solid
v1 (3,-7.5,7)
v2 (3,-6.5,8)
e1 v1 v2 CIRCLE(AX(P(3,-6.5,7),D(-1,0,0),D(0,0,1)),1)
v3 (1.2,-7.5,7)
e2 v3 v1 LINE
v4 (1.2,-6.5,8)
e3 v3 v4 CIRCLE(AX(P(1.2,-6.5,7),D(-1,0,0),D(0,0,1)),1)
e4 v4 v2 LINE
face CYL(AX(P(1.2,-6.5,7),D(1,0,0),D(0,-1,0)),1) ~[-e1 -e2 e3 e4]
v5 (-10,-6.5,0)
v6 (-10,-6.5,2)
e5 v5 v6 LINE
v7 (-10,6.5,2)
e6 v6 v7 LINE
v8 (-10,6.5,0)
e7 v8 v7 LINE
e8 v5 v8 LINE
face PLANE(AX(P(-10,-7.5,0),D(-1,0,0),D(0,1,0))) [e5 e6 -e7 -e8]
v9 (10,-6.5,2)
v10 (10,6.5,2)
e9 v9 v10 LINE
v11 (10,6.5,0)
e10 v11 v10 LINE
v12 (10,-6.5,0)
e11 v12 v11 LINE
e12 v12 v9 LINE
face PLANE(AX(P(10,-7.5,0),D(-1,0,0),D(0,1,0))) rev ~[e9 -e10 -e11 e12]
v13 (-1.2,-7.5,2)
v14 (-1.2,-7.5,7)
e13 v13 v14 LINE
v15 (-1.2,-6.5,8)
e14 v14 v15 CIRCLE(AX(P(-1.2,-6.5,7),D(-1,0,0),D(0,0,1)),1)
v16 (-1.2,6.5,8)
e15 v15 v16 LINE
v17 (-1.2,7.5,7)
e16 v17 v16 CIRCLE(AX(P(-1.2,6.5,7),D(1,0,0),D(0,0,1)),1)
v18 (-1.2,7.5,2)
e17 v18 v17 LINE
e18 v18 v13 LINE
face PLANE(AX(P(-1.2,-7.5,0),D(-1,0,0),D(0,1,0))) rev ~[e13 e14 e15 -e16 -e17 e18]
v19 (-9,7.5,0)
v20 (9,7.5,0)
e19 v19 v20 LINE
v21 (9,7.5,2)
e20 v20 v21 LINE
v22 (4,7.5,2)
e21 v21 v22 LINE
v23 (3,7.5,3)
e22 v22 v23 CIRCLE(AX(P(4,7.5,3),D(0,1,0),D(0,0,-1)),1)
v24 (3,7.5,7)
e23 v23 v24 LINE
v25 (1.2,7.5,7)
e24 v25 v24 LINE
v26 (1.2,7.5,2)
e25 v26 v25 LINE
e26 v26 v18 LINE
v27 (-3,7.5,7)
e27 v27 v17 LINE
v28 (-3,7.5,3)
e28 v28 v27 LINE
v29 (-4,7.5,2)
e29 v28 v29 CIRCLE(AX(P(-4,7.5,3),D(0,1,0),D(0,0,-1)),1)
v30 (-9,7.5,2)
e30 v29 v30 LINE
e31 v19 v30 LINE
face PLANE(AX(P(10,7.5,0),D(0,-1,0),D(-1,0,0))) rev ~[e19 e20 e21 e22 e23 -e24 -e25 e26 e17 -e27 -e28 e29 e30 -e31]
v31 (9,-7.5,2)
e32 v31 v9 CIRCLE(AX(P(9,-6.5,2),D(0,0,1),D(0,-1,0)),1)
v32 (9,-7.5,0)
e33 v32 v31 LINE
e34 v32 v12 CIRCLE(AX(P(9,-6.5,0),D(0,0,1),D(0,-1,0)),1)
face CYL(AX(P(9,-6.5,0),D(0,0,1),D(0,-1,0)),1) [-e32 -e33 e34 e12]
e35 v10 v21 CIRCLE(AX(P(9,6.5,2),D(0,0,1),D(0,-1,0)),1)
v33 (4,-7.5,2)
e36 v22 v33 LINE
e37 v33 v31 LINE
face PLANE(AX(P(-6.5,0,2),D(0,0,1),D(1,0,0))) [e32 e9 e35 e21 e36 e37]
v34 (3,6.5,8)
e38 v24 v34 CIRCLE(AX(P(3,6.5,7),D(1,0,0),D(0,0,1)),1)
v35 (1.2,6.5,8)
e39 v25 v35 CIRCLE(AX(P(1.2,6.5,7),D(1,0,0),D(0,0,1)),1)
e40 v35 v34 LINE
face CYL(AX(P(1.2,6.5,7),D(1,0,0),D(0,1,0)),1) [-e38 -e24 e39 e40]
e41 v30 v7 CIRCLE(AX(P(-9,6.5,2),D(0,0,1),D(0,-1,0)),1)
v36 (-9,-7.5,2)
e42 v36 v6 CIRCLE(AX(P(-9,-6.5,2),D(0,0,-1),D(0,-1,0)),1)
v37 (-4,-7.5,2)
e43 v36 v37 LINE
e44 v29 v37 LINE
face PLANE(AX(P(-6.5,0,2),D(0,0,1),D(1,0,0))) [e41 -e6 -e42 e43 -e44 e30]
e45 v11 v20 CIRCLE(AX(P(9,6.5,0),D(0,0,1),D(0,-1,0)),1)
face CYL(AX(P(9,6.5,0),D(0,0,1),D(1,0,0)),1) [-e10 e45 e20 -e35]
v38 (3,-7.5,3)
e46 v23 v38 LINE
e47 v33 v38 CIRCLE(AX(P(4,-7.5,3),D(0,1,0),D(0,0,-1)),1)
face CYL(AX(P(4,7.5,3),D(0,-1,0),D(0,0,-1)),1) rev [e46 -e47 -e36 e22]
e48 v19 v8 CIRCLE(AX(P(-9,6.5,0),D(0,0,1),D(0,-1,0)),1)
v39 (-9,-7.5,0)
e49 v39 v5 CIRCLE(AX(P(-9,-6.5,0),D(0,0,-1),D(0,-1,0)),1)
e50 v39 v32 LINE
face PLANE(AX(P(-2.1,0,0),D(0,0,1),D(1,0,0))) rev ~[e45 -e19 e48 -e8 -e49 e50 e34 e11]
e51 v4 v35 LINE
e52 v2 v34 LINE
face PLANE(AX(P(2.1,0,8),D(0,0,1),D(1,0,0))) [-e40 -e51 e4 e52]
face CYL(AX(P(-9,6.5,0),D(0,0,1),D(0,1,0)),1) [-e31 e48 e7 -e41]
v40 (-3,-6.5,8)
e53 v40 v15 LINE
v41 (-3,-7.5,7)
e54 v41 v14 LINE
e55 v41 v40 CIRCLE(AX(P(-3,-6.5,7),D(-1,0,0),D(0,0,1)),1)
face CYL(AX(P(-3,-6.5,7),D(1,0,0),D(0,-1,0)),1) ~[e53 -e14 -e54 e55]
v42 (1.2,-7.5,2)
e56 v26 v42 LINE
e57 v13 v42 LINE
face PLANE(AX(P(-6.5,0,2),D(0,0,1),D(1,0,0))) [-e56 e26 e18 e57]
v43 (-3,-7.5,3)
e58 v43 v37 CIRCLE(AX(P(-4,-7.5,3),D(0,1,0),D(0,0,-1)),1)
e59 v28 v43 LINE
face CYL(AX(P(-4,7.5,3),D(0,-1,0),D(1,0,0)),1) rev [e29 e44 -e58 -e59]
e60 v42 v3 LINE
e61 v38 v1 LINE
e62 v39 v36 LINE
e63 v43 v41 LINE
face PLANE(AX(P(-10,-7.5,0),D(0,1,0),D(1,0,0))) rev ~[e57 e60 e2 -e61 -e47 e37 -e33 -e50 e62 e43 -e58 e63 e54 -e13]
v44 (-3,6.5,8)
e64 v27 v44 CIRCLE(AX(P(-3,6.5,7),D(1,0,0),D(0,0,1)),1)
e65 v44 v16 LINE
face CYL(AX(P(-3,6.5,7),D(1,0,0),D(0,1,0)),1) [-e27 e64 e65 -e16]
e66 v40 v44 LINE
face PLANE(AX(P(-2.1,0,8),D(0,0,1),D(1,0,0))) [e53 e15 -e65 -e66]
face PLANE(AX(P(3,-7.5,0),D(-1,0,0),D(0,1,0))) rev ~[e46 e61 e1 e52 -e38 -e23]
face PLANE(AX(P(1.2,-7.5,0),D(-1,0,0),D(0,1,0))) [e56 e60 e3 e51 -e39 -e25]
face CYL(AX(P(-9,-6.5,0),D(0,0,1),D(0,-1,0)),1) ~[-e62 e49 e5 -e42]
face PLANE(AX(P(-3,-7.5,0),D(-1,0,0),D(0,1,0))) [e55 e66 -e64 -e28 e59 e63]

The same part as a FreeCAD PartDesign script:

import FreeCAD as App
import Part
import Sketcher
Q = App.Units.Quantity


def edges_at(feature, points):
    """Names of the edges that pass closest to the given points."""
    edges = feature.Shape.Edges
    near = lambda p: min(range(len(edges)), key=lambda i: edges[i].distToShape(Part.Vertex(*p))[0])
    return sorted({f"Edge{near(p) + 1}" for p in points})

doc = App.newDocument("Part")
body = doc.addObject("PartDesign::Body", "Body")

sketch1 = body.newObject("Sketcher::SketchObject", "Sketch")
sketch1.AttachmentSupport = (doc.getObject("XY_Plane"), [""])
sketch1.MapMode = "FlatFace"
sketch1.addGeometry(Part.LineSegment(App.Vector(-10, 8, 0), App.Vector(-10, -8, 0)), False)
sketch1.addGeometry(Part.LineSegment(App.Vector(-10, -8, 0), App.Vector(10, -8, 0)), False)
sketch1.addGeometry(Part.LineSegment(App.Vector(10, -8, 0), App.Vector(10, 8, 0)), False)
sketch1.addGeometry(Part.LineSegment(App.Vector(10, 8, 0), App.Vector(-10, 8, 0)), False)
sketch1.addConstraint(Sketcher.Constraint("Coincident", 0, 2, 1, 1))
sketch1.addConstraint(Sketcher.Constraint("Coincident", 1, 2, 2, 1))
sketch1.addConstraint(Sketcher.Constraint("Coincident", 2, 2, 3, 1))
sketch1.addConstraint(Sketcher.Constraint("Coincident", 3, 2, 0, 1))
sketch1.addConstraint(Sketcher.Constraint("Vertical", 0))
sketch1.addConstraint(Sketcher.Constraint("Horizontal", 1))
sketch1.addConstraint(Sketcher.Constraint("Vertical", 2))
sketch1.addConstraint(Sketcher.Constraint("Horizontal", 3))
sketch1.addConstraint(Sketcher.Constraint("Symmetric", 0, 2, 2, 2, -1, 1))
sketch1.addConstraint(Sketcher.Constraint("DistanceX", 1, 1, 1, 2, Q("20 mm")))
sketch1.addConstraint(Sketcher.Constraint("DistanceY", 0, 2, 0, 1, Q("15 mm")))
pad1 = body.newObject("PartDesign::Pad", "Pad")
pad1.Profile = sketch1
pad1.Length = 2

sketch2 = body.newObject("Sketcher::SketchObject", "Sketch001")
sketch2.AttachmentSupport = (doc.getObject("XY_Plane"), [""])
sketch2.MapMode = "FlatFace"
sketch2.addGeometry(Part.LineSegment(App.Vector(-3, 7.5, 0), App.Vector(-3, -7.5, 0)), False)
sketch2.addGeometry(Part.LineSegment(App.Vector(-3, -7.5, 0), App.Vector(-1.2, -7.5, 0)), False)
sketch2.addGeometry(Part.LineSegment(App.Vector(-1.2, -7.5, 0), App.Vector(-1.2, 7.5, 0)), False)
sketch2.addGeometry(Part.LineSegment(App.Vector(-1.2, 7.5, 0), App.Vector(-3, 7.5, 0)), False)
sketch2.addGeometry(Part.LineSegment(App.Vector(1.2, 7.5, 0), App.Vector(1.2, -7.5, 0)), False)
sketch2.addGeometry(Part.LineSegment(App.Vector(1.2, -7.5, 0), App.Vector(3, -7.5, 0)), False)
sketch2.addGeometry(Part.LineSegment(App.Vector(3, -7.5, 0), App.Vector(3, 7.5, 0)), False)
sketch2.addGeometry(Part.LineSegment(App.Vector(3, 7.5, 0), App.Vector(1.2, 7.5, 0)), False)
sketch2.addConstraint(Sketcher.Constraint("Coincident", 0, 2, 1, 1))
sketch2.addConstraint(Sketcher.Constraint("Coincident", 1, 2, 2, 1))
sketch2.addConstraint(Sketcher.Constraint("Coincident", 2, 2, 3, 1))
sketch2.addConstraint(Sketcher.Constraint("Coincident", 3, 2, 0, 1))
sketch2.addConstraint(Sketcher.Constraint("Coincident", 4, 2, 5, 1))
sketch2.addConstraint(Sketcher.Constraint("Coincident", 5, 2, 6, 1))
sketch2.addConstraint(Sketcher.Constraint("Coincident", 6, 2, 7, 1))
sketch2.addConstraint(Sketcher.Constraint("Coincident", 7, 2, 4, 1))
sketch2.addConstraint(Sketcher.Constraint("Vertical", 0))
sketch2.addConstraint(Sketcher.Constraint("Horizontal", 1))
sketch2.addConstraint(Sketcher.Constraint("Vertical", 2))
sketch2.addConstraint(Sketcher.Constraint("Horizontal", 3))
sketch2.addConstraint(Sketcher.Constraint("Vertical", 4))
sketch2.addConstraint(Sketcher.Constraint("Horizontal", 5))
sketch2.addConstraint(Sketcher.Constraint("Vertical", 6))
sketch2.addConstraint(Sketcher.Constraint("Horizontal", 7))
sketch2.addConstraint(Sketcher.Constraint("Symmetric", 2, 2, 4, 2, -1, 1))
sketch2.addConstraint(Sketcher.Constraint("Symmetric", 0, 2, 6, 2, -1, 1))
sketch2.addConstraint(Sketcher.Constraint("Horizontal", 1, 2, 4, 2))
sketch2.addConstraint(Sketcher.Constraint("DistanceY", 0, 2, 0, 1, Q("15 mm")))
sketch2.addConstraint(Sketcher.Constraint("DistanceX", 1, 1, 1, 2, Q("1.8 mm")))
sketch2.addConstraint(Sketcher.Constraint("DistanceX", 0, 2, -1, 1, Q("3 mm")))
pad2 = body.newObject("PartDesign::Pad", "Pad001")
pad2.Profile = sketch2
pad2.Length = 8
doc.recompute()

fillet = body.newObject("PartDesign::Fillet", "Fillet")
fillet.Base = (pad2, edges_at(pad2, [
    (2.1, -7.5, 8),
    (-2.1, -7.5, 8),
    (-2.1, 7.5, 8),
    (2.1, 7.5, 8),
    (10, -7.5, 1),
    (10, 7.5, 1),
    (-10, -7.5, 1),
    (-10, 7.5, 1),
    (3, 0, 2),
    (-3, 0, 2),
]))
fillet.Radius = 1

doc.recompute()
